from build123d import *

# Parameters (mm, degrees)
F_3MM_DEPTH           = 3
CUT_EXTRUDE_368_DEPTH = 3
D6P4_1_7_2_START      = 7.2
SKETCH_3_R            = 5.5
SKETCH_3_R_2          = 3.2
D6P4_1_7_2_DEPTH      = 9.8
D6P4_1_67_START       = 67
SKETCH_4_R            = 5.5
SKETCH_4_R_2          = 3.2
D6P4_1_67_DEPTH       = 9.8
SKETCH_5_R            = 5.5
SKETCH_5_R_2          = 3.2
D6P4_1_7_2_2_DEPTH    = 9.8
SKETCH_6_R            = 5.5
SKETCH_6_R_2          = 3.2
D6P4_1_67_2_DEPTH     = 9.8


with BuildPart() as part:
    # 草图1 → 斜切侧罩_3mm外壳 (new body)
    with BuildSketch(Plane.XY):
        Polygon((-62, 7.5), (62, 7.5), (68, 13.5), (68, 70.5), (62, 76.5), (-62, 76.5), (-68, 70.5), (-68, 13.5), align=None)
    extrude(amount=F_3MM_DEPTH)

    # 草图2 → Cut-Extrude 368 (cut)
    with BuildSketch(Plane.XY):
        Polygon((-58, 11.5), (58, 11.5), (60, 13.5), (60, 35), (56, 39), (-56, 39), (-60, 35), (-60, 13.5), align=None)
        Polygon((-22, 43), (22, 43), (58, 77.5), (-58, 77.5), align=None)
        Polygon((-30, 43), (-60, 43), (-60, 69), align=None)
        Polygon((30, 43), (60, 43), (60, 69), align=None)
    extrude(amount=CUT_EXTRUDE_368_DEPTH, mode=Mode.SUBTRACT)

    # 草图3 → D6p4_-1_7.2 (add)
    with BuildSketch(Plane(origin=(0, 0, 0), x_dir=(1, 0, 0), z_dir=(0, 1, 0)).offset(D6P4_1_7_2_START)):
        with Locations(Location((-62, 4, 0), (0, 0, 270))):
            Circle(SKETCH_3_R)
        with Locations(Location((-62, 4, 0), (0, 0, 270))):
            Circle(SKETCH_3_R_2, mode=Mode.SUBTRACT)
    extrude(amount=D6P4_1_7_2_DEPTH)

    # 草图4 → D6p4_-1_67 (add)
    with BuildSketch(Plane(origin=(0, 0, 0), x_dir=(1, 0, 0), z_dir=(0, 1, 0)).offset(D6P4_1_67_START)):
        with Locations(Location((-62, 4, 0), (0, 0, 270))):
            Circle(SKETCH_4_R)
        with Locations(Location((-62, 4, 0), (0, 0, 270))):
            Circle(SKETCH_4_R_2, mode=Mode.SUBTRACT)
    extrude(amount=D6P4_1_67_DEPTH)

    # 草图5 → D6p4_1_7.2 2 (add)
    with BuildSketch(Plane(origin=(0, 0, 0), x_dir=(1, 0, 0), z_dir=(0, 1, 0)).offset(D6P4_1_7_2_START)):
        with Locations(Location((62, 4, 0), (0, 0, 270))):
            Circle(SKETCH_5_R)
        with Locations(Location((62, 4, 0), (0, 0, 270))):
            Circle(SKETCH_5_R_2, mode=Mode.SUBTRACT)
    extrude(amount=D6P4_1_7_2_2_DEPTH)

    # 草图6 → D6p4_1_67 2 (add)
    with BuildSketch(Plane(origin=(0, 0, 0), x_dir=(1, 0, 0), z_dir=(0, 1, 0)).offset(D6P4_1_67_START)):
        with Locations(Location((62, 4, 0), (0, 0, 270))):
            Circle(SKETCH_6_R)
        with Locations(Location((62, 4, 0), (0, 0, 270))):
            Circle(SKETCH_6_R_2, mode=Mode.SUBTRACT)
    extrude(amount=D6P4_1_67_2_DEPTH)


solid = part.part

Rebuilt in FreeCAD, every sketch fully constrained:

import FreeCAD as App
import Part
import Sketcher
Q = App.Units.Quantity

doc = App.newDocument("Part")
body = doc.addObject("PartDesign::Body", "Body")

# Sketch on XY plane
sketch1 = body.newObject("Sketcher::SketchObject", "Sketch")
sketch1.AttachmentSupport = (doc.getObject("XY_Plane"), [""])
sketch1.MapMode = "FlatFace"
sketch1.addGeometry(Part.LineSegment(App.Vector(-62, 8, 0), App.Vector(62, 8, 0)), False)
sketch1.addGeometry(Part.LineSegment(App.Vector(62, 8, 0), App.Vector(68, 14, 0)), False)
sketch1.addGeometry(Part.LineSegment(App.Vector(68, 14, 0), App.Vector(68, 70, 0)), False)
sketch1.addGeometry(Part.LineSegment(App.Vector(68, 70, 0), App.Vector(62, 76, 0)), False)
sketch1.addGeometry(Part.LineSegment(App.Vector(62, 76, 0), App.Vector(-62, 76, 0)), False)
sketch1.addGeometry(Part.LineSegment(App.Vector(-62, 76, 0), App.Vector(-68, 70, 0)), False)
sketch1.addGeometry(Part.LineSegment(App.Vector(-68, 70, 0), App.Vector(-68, 14, 0)), False)
sketch1.addGeometry(Part.LineSegment(App.Vector(-68, 14, 0), App.Vector(-62, 8, 0)), False)
sketch1.addConstraint(Sketcher.Constraint("Coincident", 0, 2, 1, 1))
sketch1.addConstraint(Sketcher.Constraint("Coincident", 1, 2, 2, 1))
sketch1.addConstraint(Sketcher.Constraint("Coincident", 2, 2, 3, 1))
sketch1.addConstraint(Sketcher.Constraint("Coincident", 3, 2, 4, 1))
sketch1.addConstraint(Sketcher.Constraint("Coincident", 4, 2, 5, 1))
sketch1.addConstraint(Sketcher.Constraint("Coincident", 5, 2, 6, 1))
sketch1.addConstraint(Sketcher.Constraint("Coincident", 6, 2, 7, 1))
sketch1.addConstraint(Sketcher.Constraint("Coincident", 7, 2, 0, 1))
sketch1.addConstraint(Sketcher.Constraint("Horizontal", 0))
sketch1.addConstraint(Sketcher.Constraint("Vertical", 2))
sketch1.addConstraint(Sketcher.Constraint("Horizontal", 4))
sketch1.addConstraint(Sketcher.Constraint("Vertical", 6))
sketch1.addConstraint(Sketcher.Constraint("Symmetric", 2, 2, 5, 2, -2))
sketch1.addConstraint(Sketcher.Constraint("Perpendicular", 1, 3))
sketch1.addConstraint(Sketcher.Constraint("Perpendicular", 3, 5))
sketch1.addConstraint(Sketcher.Constraint("Perpendicular", 5, 7))
sketch1.addConstraint(Sketcher.Constraint("Horizontal", 1, 2, 6, 2))
sketch1.addConstraint(Sketcher.Constraint("Vertical", 0, 2, 3, 2))
sketch1.addConstraint(Sketcher.Constraint("Vertical", 4, 2, 7, 2))
sketch1.addConstraint(Sketcher.Constraint("DistanceX", 0, 1, 0, 2, Q("124 mm")))
sketch1.addConstraint(Sketcher.Constraint("DistanceY", 2, 1, 2, 2, Q("57 mm")))
sketch1.addConstraint(Sketcher.Constraint("DistanceX", -1, 1, 1, 2, Q("68 mm")))
sketch1.addConstraint(Sketcher.Constraint("DistanceY", -1, 1, 0, 2, Q("7.5 mm")))
pad1 = body.newObject("PartDesign::Pad", "Pad")
pad1.Profile = sketch1
pad1.Length = 3

# Sketch on XY plane
sketch2 = body.newObject("Sketcher::SketchObject", "Sketch001")
sketch2.AttachmentSupport = (doc.getObject("XY_Plane"), [""])
sketch2.MapMode = "FlatFace"
sketch2.addGeometry(Part.LineSegment(App.Vector(-58, 11.5, 0), App.Vector(58, 11.5, 0)), False)
sketch2.addGeometry(Part.LineSegment(App.Vector(58, 11.5, 0), App.Vector(60, 13.5, 0)), False)
sketch2.addGeometry(Part.LineSegment(App.Vector(60, 13.5, 0), App.Vector(60, 35, 0)), False)
sketch2.addGeometry(Part.LineSegment(App.Vector(60, 35, 0), App.Vector(56, 39, 0)), False)
sketch2.addGeometry(Part.LineSegment(App.Vector(56, 39, 0), App.Vector(-56, 39, 0)), False)
sketch2.addGeometry(Part.LineSegment(App.Vector(-56, 39, 0), App.Vector(-60, 35, 0)), False)
sketch2.addGeometry(Part.LineSegment(App.Vector(-60, 35, 0), App.Vector(-60, 13.5, 0)), False)
sketch2.addGeometry(Part.LineSegment(App.Vector(-60, 13.5, 0), App.Vector(-58, 11.5, 0)), False)
sketch2.addGeometry(Part.LineSegment(App.Vector(-22, 43, 0), App.Vector(22, 43, 0)), False)
sketch2.addGeometry(Part.LineSegment(App.Vector(22, 43, 0), App.Vector(58, 77.5, 0)), False)
sketch2.addGeometry(Part.LineSegment(App.Vector(58, 77.5, 0), App.Vector(-58, 77.5, 0)), False)
sketch2.addGeometry(Part.LineSegment(App.Vector(-58, 77.5, 0), App.Vector(-22, 43, 0)), False)
sketch2.addGeometry(Part.LineSegment(App.Vector(-60, 43, 0), App.Vector(-30, 43, 0)), False)
sketch2.addGeometry(Part.LineSegment(App.Vector(-30, 43, 0), App.Vector(-60, 69, 0)), False)
sketch2.addGeometry(Part.LineSegment(App.Vector(-60, 69, 0), App.Vector(-60, 43, 0)), False)
sketch2.addGeometry(Part.LineSegment(App.Vector(30, 43, 0), App.Vector(60, 43, 0)), False)
sketch2.addGeometry(Part.LineSegment(App.Vector(60, 43, 0), App.Vector(60, 69, 0)), False)
sketch2.addGeometry(Part.LineSegment(App.Vector(60, 69, 0), App.Vector(30, 43, 0)), False)
sketch2.addConstraint(Sketcher.Constraint("Coincident", 0, 2, 1, 1))
sketch2.addConstraint(Sketcher.Constraint("Coincident", 1, 2, 2, 1))
sketch2.addConstraint(Sketcher.Constraint("Coincident", 2, 2, 3, 1))
sketch2.addConstraint(Sketcher.Constraint("Coincident", 3, 2, 4, 1))
sketch2.addConstraint(Sketcher.Constraint("Coincident", 4, 2, 5, 1))
sketch2.addConstraint(Sketcher.Constraint("Coincident", 5, 2, 6, 1))
sketch2.addConstraint(Sketcher.Constraint("Coincident", 6, 2, 7, 1))
sketch2.addConstraint(Sketcher.Constraint("Coincident", 7, 2, 0, 1))
sketch2.addConstraint(Sketcher.Constraint("Coincident", 8, 2, 9, 1))
sketch2.addConstraint(Sketcher.Constraint("Coincident", 9, 2, 10, 1))
sketch2.addConstraint(Sketcher.Constraint("Coincident", 10, 2, 11, 1))
sketch2.addConstraint(Sketcher.Constraint("Coincident", 11, 2, 8, 1))
sketch2.addConstraint(Sketcher.Constraint("Coincident", 12, 2, 13, 1))
sketch2.addConstraint(Sketcher.Constraint("Coincident", 13, 2, 14, 1))
sketch2.addConstraint(Sketcher.Constraint("Coincident", 14, 2, 12, 1))
sketch2.addConstraint(Sketcher.Constraint("Coincident", 15, 2, 16, 1))
sketch2.addConstraint(Sketcher.Constraint("Coincident", 16, 2, 17, 1))
sketch2.addConstraint(Sketcher.Constraint("Coincident", 17, 2, 15, 1))
sketch2.addConstraint(Sketcher.Constraint("Horizontal", 0))
sketch2.addConstraint(Sketcher.Constraint("Vertical", 2))
sketch2.addConstraint(Sketcher.Constraint("Horizontal", 4))
sketch2.addConstraint(Sketcher.Constraint("Vertical", 6))
sketch2.addConstraint(Sketcher.Constraint("Horizontal", 8))
sketch2.addConstraint(Sketcher.Constraint("Horizontal", 10))
sketch2.addConstraint(Sketcher.Constraint("Horizontal", 12))
sketch2.addConstraint(Sketcher.Constraint("Vertical", 14))
sketch2.addConstraint(Sketcher.Constraint("Horizontal", 15))
sketch2.addConstraint(Sketcher.Constraint("Vertical", 16))
sketch2.addConstraint(Sketcher.Constraint("Symmetric", 2, 2, 5, 2, -2))
sketch2.addConstraint(Sketcher.Constraint("Symmetric", 14, 2, 15, 2, -2))
sketch2.addConstraint(Sketcher.Constraint("Perpendicular", 1, 3))
sketch2.addConstraint(Sketcher.Constraint("Perpendicular", 3, 5))
sketch2.addConstraint(Sketcher.Constraint("Perpendicular", 5, 7))
sketch2.addConstraint(Sketcher.Constraint("Horizontal", 1, 2, 6, 2))
sketch2.addConstraint(Sketcher.Constraint("Horizontal", 11, 2, 12, 2))
sketch2.addConstraint(Sketcher.Constraint("Horizontal", 13, 2, 16, 2))
sketch2.addConstraint(Sketcher.Constraint("Vertical", 0, 2, 9, 2))
sketch2.addConstraint(Sketcher.Constraint("Vertical", 7, 2, 10, 2))
sketch2.addConstraint(Sketcher.Constraint("Vertical", 6, 2, 13, 2))
sketch2.addConstraint(Sketcher.Constraint("Equal", 12, 15))
sketch2.addConstraint(Sketcher.Constraint("Equal", 3, 5))
sketch2.addConstraint(Sketcher.Constraint("Equal", 9, 11))
sketch2.addConstraint(Sketcher.Constraint("DistanceX", 0, 1, 0, 2, Q("116 mm")))
sketch2.addConstraint(Sketcher.Constraint("DistanceX", 4, 2, 4, 1, Q("112 mm")))
sketch2.addConstraint(Sketcher.Constraint("DistanceX", 8, 1, 8, 2, Q("44 mm")))
sketch2.addConstraint(Sketcher.Constraint("DistanceX", 12, 1, 12, 2, Q("30 mm")))
sketch2.addConstraint(Sketcher.Constraint("DistanceY", 14, 2, 14, 1, Q("26 mm")))
sketch2.addConstraint(Sketcher.Constraint("DistanceY", 2, 1, 2, 2, Q("21.5 mm")))
sketch2.addConstraint(Sketcher.Constraint("DistanceX", -1, 1, 1, 2, Q("60 mm")))
sketch2.addConstraint(Sketcher.Constraint("DistanceY", -1, 1, 2, 2, Q("35 mm")))
sketch2.addConstraint(Sketcher.Constraint("DistanceY", -1, 1, 8, 2, Q("43 mm")))
sketch2.addConstraint(Sketcher.Constraint("DistanceY", 1, 2, 9, 2, Q("64 mm")))
pocket1 = body.newObject("PartDesign::Pocket", "Pocket")
pocket1.Profile = sketch2
pocket1.Length = 3
pocket1.Reversed = True

# Sketch on XZ plane
sketch3 = body.newObject("Sketcher::SketchObject", "Sketch002")
sketch3.AttachmentSupport = (doc.getObject("XZ_Plane"), [""])
sketch3.MapMode = "FlatFace"
sketch3.AttachmentOffset = App.Placement(App.Vector(0, 0, -7.2), App.Rotation())
sketch3.addGeometry(Part.Circle(App.Vector(-62, -4, 0), App.Vector(0, 0, 1), 5.5), False)
sketch3.addGeometry(Part.Circle(App.Vector(-62, -4, 0), App.Vector(0, 0, 1), 3.2), False)
sketch3.addConstraint(Sketcher.Constraint("Coincident", 1, 3, 0, 3))
sketch3.addConstraint(Sketcher.Constraint("Diameter", 0, Q("11 mm")))
sketch3.addConstraint(Sketcher.Constraint("Diameter", 1, Q("6.4 mm")))
sketch3.addConstraint(Sketcher.Constraint("DistanceX", 0, 3, -1, 1, Q("62 mm")))
sketch3.addConstraint(Sketcher.Constraint("DistanceY", 0, 3, -1, 1, Q("4 mm")))
pad2 = body.newObject("PartDesign::Pad", "Pad001")
pad2.Profile = sketch3
pad2.Length = 9.8
pad2.Reversed = True

# Sketch on XZ plane
sketch4 = body.newObject("Sketcher::SketchObject", "Sketch003")
sketch4.AttachmentSupport = (doc.getObject("XZ_Plane"), [""])
sketch4.MapMode = "FlatFace"
sketch4.AttachmentOffset = App.Placement(App.Vector(0, 0, -67), App.Rotation())
sketch4.addGeometry(Part.Circle(App.Vector(-62, -4, 0), App.Vector(0, 0, 1), 5.5), False)
sketch4.addGeometry(Part.Circle(App.Vector(-62, -4, 0), App.Vector(0, 0, 1), 3.2), False)
sketch4.addConstraint(Sketcher.Constraint("Coincident", 1, 3, 0, 3))
sketch4.addConstraint(Sketcher.Constraint("Diameter", 0, Q("11 mm")))
sketch4.addConstraint(Sketcher.Constraint("Diameter", 1, Q("6.4 mm")))
sketch4.addConstraint(Sketcher.Constraint("DistanceX", 0, 3, -1, 1, Q("62 mm")))
sketch4.addConstraint(Sketcher.Constraint("DistanceY", 0, 3, -1, 1, Q("4 mm")))
pad3 = body.newObject("PartDesign::Pad", "Pad002")
pad3.Profile = sketch4
pad3.Length = 9.8
pad3.Reversed = True

# Sketch on XZ plane
sketch5 = body.newObject("Sketcher::SketchObject", "Sketch004")
sketch5.AttachmentSupport = (doc.getObject("XZ_Plane"), [""])
sketch5.MapMode = "FlatFace"
sketch5.AttachmentOffset = App.Placement(App.Vector(0, 0, -7.2), App.Rotation())
sketch5.addGeometry(Part.Circle(App.Vector(62, -4, 0), App.Vector(0, 0, 1), 5.5), False)
sketch5.addGeometry(Part.Circle(App.Vector(62, -4, 0), App.Vector(0, 0, 1), 3.2), False)
sketch5.addConstraint(Sketcher.Constraint("Coincident", 1, 3, 0, 3))
sketch5.addConstraint(Sketcher.Constraint("Diameter", 0, Q("11 mm")))
sketch5.addConstraint(Sketcher.Constraint("Diameter", 1, Q("6.4 mm")))
sketch5.addConstraint(Sketcher.Constraint("DistanceX", -1, 1, 0, 3, Q("62 mm")))
sketch5.addConstraint(Sketcher.Constraint("DistanceY", 0, 3, -1, 1, Q("4 mm")))
pad4 = body.newObject("PartDesign::Pad", "Pad003")
pad4.Profile = sketch5
pad4.Length = 9.8
pad4.Reversed = True

# Sketch on XZ plane
sketch6 = body.newObject("Sketcher::SketchObject", "Sketch005")
sketch6.AttachmentSupport = (doc.getObject("XZ_Plane"), [""])
sketch6.MapMode = "FlatFace"
sketch6.AttachmentOffset = App.Placement(App.Vector(0, 0, -67), App.Rotation())
sketch6.addGeometry(Part.Circle(App.Vector(62, -4, 0), App.Vector(0, 0, 1), 5.5), False)
sketch6.addGeometry(Part.Circle(App.Vector(62, -4, 0), App.Vector(0, 0, 1), 3.2), False)
sketch6.addConstraint(Sketcher.Constraint("Coincident", 1, 3, 0, 3))
sketch6.addConstraint(Sketcher.Constraint("Diameter", 0, Q("11 mm")))
sketch6.addConstraint(Sketcher.Constraint("Diameter", 1, Q("6.4 mm")))
sketch6.addConstraint(Sketcher.Constraint("DistanceX", -1, 1, 0, 3, Q("62 mm")))
sketch6.addConstraint(Sketcher.Constraint("DistanceY", 0, 3, -1, 1, Q("4 mm")))
pad5 = body.newObject("PartDesign::Pad", "Pad004")
pad5.Profile = sketch6
pad5.Length = 9.8
pad5.Reversed = True

doc.recompute()
